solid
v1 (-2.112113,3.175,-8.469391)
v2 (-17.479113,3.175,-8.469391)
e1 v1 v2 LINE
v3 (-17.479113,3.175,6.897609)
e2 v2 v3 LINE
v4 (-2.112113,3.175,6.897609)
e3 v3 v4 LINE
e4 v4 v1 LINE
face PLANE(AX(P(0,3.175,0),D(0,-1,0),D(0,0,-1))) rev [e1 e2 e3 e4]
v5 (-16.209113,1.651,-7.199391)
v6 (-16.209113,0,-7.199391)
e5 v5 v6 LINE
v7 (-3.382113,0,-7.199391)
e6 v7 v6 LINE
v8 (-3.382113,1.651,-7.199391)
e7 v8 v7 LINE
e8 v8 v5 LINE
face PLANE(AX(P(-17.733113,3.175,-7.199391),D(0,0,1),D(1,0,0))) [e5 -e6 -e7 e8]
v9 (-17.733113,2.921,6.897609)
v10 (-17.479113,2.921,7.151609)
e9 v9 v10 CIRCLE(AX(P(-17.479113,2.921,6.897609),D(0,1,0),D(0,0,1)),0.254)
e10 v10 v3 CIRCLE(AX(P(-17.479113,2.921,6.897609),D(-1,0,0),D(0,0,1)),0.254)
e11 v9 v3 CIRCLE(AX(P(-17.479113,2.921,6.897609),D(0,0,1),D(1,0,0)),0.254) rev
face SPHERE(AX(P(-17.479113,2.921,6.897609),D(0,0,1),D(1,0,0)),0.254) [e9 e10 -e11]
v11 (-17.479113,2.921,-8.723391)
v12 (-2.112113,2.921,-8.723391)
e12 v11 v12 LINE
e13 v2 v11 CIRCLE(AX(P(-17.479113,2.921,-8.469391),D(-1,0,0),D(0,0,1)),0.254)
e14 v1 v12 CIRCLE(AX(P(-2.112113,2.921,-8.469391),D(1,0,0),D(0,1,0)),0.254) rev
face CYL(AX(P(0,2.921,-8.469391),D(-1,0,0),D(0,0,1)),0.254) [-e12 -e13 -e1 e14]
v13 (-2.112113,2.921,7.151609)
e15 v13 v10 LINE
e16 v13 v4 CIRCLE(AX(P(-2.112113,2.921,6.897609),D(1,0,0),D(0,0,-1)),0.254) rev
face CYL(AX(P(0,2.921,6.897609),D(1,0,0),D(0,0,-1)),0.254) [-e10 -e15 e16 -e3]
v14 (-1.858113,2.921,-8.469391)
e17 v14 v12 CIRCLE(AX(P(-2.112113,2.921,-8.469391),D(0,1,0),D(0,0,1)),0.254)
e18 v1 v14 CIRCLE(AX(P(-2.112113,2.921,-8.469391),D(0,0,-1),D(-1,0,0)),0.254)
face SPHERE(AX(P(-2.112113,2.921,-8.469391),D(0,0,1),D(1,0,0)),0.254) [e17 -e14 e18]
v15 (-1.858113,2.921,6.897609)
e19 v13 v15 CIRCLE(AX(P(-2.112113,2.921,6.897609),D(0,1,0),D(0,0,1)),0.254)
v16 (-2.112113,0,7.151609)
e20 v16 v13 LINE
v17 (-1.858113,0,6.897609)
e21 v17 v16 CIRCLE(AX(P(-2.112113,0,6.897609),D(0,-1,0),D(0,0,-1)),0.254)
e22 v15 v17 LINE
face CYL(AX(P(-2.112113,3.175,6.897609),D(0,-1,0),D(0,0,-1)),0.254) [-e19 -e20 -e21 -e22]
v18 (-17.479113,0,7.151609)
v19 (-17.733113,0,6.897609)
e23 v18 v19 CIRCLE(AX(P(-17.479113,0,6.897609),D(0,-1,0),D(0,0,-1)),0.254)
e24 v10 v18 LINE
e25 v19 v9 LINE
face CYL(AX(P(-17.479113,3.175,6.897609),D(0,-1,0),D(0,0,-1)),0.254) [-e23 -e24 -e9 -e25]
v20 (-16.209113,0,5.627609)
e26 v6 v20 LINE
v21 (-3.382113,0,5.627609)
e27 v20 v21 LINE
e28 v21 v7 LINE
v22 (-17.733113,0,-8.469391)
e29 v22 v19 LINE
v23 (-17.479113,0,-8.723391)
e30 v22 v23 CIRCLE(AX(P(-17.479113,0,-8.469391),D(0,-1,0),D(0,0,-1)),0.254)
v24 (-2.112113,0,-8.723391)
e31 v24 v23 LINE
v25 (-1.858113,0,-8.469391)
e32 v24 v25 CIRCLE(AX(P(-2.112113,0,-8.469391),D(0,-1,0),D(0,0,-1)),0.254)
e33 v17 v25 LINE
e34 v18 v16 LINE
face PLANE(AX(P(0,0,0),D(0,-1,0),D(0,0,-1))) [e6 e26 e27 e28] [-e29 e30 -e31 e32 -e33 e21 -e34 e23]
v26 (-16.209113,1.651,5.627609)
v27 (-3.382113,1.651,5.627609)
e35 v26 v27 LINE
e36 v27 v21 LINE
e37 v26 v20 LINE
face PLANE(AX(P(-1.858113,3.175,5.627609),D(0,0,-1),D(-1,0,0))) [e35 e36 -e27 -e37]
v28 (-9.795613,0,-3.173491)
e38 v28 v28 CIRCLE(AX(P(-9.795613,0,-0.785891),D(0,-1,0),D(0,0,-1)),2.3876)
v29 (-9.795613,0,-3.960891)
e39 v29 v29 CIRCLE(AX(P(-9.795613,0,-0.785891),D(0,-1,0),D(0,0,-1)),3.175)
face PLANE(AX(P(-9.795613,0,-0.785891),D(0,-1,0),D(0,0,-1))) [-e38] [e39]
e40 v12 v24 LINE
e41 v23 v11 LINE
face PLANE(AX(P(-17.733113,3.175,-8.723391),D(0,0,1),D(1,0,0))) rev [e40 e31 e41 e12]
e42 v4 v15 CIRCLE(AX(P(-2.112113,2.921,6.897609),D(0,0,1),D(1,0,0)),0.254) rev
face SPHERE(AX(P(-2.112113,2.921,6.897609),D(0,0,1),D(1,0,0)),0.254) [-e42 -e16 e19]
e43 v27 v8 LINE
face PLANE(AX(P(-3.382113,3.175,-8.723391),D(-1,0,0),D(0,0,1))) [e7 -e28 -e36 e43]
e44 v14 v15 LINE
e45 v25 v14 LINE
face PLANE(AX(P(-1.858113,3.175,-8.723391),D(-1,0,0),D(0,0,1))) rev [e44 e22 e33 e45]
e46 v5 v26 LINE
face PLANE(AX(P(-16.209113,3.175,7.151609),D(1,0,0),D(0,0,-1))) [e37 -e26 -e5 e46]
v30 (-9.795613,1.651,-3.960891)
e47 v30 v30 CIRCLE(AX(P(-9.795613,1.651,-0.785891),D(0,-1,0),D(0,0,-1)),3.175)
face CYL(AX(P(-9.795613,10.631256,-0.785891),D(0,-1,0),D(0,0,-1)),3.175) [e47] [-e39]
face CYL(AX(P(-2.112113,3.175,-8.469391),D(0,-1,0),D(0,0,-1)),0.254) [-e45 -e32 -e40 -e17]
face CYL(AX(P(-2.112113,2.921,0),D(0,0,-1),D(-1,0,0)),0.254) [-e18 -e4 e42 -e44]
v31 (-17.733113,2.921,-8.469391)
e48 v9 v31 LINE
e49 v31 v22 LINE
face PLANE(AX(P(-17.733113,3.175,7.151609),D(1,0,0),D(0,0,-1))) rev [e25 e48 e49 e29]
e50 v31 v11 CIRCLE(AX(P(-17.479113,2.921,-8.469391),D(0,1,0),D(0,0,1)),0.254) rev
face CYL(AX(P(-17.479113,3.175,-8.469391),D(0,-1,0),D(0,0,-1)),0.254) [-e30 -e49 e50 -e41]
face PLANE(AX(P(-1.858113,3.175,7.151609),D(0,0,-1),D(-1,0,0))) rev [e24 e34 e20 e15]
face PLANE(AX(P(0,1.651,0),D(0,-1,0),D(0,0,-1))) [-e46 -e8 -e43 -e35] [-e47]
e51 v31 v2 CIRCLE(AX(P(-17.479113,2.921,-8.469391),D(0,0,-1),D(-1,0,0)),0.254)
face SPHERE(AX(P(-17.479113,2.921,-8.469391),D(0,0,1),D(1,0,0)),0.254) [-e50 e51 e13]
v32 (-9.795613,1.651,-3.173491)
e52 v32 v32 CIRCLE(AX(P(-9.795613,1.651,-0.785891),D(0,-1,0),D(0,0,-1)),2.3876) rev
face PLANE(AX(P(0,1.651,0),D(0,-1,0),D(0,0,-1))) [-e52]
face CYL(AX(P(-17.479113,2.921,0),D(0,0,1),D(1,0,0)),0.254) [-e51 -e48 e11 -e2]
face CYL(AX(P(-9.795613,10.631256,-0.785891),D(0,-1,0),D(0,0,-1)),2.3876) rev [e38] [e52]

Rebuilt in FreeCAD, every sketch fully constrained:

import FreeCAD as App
import Part
import Sketcher
Q = App.Units.Quantity


def edges_at(feature, points):
    """Names of the edges that pass closest to the given points."""
    edges = feature.Shape.Edges
    near = lambda p: min(range(len(edges)), key=lambda i: edges[i].distToShape(Part.Vertex(*p))[0])
    return sorted({f"Edge{near(p) + 1}" for p in points})


def faces_at(feature, points):
    """Names of the faces that lie closest to the given points."""
    faces = feature.Shape.Faces
    near = lambda p: min(range(len(faces)), key=lambda i: faces[i].distToShape(Part.Vertex(*p))[0])
    return sorted({f"Face{near(p) + 1}" for p in points})


def add_polygon(sketch, points):
    """Adds a closed chain of lines whose ends are joined by coincident constraints."""
    first, n = sketch.GeometryCount, len(points)
    for a, b in zip(points, points[1:] + points[:1]):
        sketch.addGeometry(Part.LineSegment(App.Vector(*a, 0), App.Vector(*b, 0)), False)
    for i in range(n):
        sketch.addConstraint(Sketcher.Constraint("Coincident", first + i, 2, first + (i + 1) % n, 1))

doc = App.newDocument("Part")
body = doc.addObject("PartDesign::Body", "Body")

# Sketch on XZ plane
sketch1 = body.newObject("Sketcher::SketchObject", "Sketch")
sketch1.AttachmentSupport = (doc.getObject("XZ_Plane"), [""])
sketch1.MapMode = "FlatFace"
add_polygon(sketch1, [(-18, -9), (-18, 7), (-2, 7), (-2, -9)])  # lines 0-3
sketch1.addConstraint([
    Sketcher.Constraint("Vertical", 0),
    Sketcher.Constraint("Horizontal", 1),
    Sketcher.Constraint("Vertical", 2),
    Sketcher.Constraint("Horizontal", 3),
    Sketcher.Constraint("Equal", 3, 0),
    Sketcher.Constraint("DistanceX", 1, 1, 1, 2, Q("0.625 in")),
    Sketcher.Constraint("DistanceY", -1, 1, 0, 2, Q("7.151609 mm")),
    Sketcher.Constraint("DistanceX", 0, 2, -1, 1, Q("17.733113 mm")),
])
pad1 = body.newObject("PartDesign::Pad", "Pad")
pad1.Profile = sketch1
pad1.Length = Q("0.125 in")
pad1.Reversed = True
doc.recompute()

thickness = body.newObject("PartDesign::Thickness", "Thickness")
thickness.Base = (pad1, faces_at(pad1, [(-9.796, 0, -0.786)]))
thickness.Value = Q("0.06 in")
thickness.Reversed = True
thickness.Join = "Intersection"

# Sketch on XZ plane
sketch2 = body.newObject("Sketcher::SketchObject", "Sketch001")
sketch2.AttachmentSupport = (doc.getObject("XZ_Plane"), [""])
sketch2.MapMode = "FlatFace"
sketch2.addGeometry([
    Part.Circle(App.Vector(-9.8, -0.8, 0), App.Vector(0, 0, 1), 3.2),
    Part.Circle(App.Vector(-9.8, -0.8, 0), App.Vector(0, 0, 1), 2.4),
], False)
sketch2.addConstraint([
    Sketcher.Constraint("Coincident", 1, 3, 0, 3),
    Sketcher.Constraint("Diameter", 0, Q("0.25 in")),
    Sketcher.Constraint("Diameter", 1, Q("0.188 in")),
    Sketcher.Constraint("DistanceY", 0, 3, -1, 1, Q("0.785891 mm")),
    Sketcher.Constraint("DistanceX", 0, 3, -1, 1, Q("9.795613 mm")),
])
pad2 = body.newObject("PartDesign::Pad", "Pad001")
pad2.Profile = sketch2
pad2.Length = Q("0.065 in")
pad2.Reversed = True
doc.recompute()

fillet = body.newObject("PartDesign::Fillet", "Fillet")
fillet.Base = (pad2, edges_at(pad2, [
    (-1.858, 3.175, -0.786),
    (-9.796, 3.175, -8.723),
    (-17.733, 3.175, -0.786),
    (-17.733, 1.587, -8.723),
    (-1.858, 1.587, -8.723),
    (-1.858, 1.587, 7.152),
    (-17.733, 1.587, 7.152),
    (-9.796, 3.175, 7.152),
]))
fillet.Radius = Q("0.01 in")

doc.recompute()
